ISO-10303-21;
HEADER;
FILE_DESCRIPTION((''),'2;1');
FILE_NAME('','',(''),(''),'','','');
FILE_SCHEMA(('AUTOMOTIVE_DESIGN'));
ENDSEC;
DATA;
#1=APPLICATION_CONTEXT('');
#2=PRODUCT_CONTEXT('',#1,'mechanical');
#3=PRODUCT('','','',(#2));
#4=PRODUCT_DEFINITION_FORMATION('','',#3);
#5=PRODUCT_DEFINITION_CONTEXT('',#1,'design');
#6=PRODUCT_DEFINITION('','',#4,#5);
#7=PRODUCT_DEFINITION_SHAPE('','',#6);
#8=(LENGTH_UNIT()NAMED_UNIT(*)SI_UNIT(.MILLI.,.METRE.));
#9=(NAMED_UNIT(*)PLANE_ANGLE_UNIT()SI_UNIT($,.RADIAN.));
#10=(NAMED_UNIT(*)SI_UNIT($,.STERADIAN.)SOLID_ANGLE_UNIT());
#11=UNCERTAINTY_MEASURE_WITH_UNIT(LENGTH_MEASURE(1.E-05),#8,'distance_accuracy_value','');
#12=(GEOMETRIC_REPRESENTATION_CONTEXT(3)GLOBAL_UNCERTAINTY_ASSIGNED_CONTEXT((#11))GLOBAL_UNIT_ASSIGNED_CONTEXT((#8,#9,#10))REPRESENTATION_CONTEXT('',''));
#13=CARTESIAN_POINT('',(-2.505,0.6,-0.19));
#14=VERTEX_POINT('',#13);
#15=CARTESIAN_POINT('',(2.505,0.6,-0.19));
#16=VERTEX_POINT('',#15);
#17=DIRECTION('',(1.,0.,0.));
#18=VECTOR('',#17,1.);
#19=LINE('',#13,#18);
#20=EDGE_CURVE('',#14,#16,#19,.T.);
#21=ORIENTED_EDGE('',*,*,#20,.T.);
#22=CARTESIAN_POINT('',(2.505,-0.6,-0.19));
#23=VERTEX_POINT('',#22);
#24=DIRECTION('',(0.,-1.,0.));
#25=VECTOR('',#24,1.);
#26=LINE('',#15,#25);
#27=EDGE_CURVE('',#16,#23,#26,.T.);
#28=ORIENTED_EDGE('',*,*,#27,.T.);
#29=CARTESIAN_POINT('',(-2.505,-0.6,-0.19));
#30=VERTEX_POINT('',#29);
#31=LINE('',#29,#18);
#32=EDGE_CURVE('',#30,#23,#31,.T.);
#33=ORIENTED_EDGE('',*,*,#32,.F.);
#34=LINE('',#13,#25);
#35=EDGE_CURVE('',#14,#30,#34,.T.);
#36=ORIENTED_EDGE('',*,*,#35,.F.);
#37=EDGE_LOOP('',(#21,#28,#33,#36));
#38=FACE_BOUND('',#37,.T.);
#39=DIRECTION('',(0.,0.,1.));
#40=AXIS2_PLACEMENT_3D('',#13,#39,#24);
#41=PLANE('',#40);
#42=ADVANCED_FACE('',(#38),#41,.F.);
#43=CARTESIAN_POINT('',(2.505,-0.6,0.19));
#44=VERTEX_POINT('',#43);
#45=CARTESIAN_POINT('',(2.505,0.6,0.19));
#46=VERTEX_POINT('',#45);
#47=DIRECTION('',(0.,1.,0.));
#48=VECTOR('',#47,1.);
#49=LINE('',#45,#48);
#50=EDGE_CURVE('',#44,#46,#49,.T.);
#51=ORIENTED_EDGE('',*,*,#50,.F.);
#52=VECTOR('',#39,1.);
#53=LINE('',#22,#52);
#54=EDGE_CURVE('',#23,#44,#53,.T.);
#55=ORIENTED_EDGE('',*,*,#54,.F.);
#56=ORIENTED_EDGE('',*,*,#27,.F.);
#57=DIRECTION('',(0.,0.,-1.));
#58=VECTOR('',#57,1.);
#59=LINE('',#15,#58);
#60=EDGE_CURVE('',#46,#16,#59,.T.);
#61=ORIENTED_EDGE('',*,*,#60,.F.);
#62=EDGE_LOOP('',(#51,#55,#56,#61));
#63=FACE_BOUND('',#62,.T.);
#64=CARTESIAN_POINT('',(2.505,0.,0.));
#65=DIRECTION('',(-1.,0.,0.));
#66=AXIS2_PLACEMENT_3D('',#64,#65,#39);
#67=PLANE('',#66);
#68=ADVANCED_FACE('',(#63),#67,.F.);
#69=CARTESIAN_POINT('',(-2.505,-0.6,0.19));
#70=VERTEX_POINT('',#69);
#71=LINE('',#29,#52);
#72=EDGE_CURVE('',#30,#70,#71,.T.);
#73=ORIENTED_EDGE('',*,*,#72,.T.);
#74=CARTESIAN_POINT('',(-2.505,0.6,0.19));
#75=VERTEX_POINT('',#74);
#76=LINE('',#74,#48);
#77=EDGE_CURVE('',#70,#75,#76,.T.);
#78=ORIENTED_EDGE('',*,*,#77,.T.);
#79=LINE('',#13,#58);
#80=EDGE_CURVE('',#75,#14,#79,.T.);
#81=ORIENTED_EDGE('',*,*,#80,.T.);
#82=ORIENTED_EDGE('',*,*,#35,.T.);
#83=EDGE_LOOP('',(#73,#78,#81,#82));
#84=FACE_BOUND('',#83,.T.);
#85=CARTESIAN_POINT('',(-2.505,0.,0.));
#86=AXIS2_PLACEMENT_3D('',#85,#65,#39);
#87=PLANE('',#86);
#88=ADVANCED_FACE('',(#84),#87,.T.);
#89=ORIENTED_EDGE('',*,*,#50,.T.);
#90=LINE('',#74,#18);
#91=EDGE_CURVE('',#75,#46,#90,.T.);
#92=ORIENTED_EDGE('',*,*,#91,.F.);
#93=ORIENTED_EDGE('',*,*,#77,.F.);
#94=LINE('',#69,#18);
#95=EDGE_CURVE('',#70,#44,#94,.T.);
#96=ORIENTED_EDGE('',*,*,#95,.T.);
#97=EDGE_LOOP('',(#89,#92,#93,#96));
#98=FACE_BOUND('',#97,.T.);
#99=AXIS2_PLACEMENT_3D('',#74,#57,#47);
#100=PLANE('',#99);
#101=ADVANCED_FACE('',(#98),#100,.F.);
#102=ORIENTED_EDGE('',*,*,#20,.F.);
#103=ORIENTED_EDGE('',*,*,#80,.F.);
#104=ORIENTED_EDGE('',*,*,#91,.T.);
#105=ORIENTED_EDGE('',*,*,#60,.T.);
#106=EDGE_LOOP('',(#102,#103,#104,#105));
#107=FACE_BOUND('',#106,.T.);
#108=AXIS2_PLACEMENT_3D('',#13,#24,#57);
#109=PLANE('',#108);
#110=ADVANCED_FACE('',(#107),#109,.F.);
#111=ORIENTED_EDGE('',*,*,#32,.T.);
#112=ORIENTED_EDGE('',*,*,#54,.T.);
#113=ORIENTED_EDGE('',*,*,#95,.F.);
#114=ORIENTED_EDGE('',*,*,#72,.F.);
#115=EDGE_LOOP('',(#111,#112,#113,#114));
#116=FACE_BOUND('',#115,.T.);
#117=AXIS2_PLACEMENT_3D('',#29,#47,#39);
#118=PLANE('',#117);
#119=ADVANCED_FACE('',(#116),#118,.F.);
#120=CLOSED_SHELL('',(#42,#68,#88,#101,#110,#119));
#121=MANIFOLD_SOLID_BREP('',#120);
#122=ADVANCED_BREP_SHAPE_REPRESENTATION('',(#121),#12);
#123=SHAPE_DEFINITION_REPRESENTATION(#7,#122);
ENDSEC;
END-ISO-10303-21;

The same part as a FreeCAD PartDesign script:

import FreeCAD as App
import Part
import Sketcher
from FreeCAD import Vector
Q = App.Units.Quantity

doc = App.newDocument("Part")
params = doc.addObject("Spreadsheet::Sheet", "Params")
for row, (alias, value) in enumerate([
    ("sketch1_width", "1.2 mm"),
    ("sketch1_height", "0.38 mm"),
    ("pad1_length", "5.01 mm"),
], start=1):
    params.set(f"A{row}", alias)
    params.set(f"B{row}", "=" + value)
    params.setAlias(f"B{row}", alias)

body = doc.addObject("PartDesign::Body", "Body")

sketch1 = doc.addObject("Sketcher::SketchObject", "Sketch")
body.addObject(sketch1)
sketch1.AttachmentSupport = (doc.YZ_Plane, [""])
sketch1.MapMode = "FlatFace"
sketch1.addGeometry([
    Part.LineSegment(Vector(0.6, -0.19, 0), Vector(-0.6, -0.19, 0)),
    Part.LineSegment(Vector(-0.6, -0.19, 0), Vector(-0.6, 0.19, 0)),
    Part.LineSegment(Vector(-0.6, 0.19, 0), Vector(0.6, 0.19, 0)),
    Part.LineSegment(Vector(0.6, 0.19, 0), Vector(0.6, -0.19, 0)),
], False)
sketch1.addConstraint([
    Sketcher.Constraint("Coincident", 0, 2, 1, 1),
    Sketcher.Constraint("Coincident", 1, 2, 2, 1),
    Sketcher.Constraint("Coincident", 2, 2, 3, 1),
    Sketcher.Constraint("Coincident", 3, 2, 0, 1),
    Sketcher.Constraint("Horizontal", 0),
    Sketcher.Constraint("Vertical", 1),
    Sketcher.Constraint("Horizontal", 2),
    Sketcher.Constraint("Vertical", 3),
    Sketcher.Constraint("Symmetric", 0, 2, 2, 2, -1, 1),
    Sketcher.Constraint("DistanceX", 0, 2, 0, 1, Q("1.2 mm")),
    Sketcher.Constraint("DistanceY", 1, 1, 1, 2, Q("0.38 mm")),
])
sketch1.setExpression("Constraints[9]", "Params.sketch1_width")
sketch1.setExpression("Constraints[10]", "Params.sketch1_height")
pad1 = doc.addObject("PartDesign::Pad", "Pad")
body.addObject(pad1)
pad1.Profile = sketch1
pad1.setExpression("Length", "Params.pad1_length")
pad1.Midplane = True

doc.recompute()
